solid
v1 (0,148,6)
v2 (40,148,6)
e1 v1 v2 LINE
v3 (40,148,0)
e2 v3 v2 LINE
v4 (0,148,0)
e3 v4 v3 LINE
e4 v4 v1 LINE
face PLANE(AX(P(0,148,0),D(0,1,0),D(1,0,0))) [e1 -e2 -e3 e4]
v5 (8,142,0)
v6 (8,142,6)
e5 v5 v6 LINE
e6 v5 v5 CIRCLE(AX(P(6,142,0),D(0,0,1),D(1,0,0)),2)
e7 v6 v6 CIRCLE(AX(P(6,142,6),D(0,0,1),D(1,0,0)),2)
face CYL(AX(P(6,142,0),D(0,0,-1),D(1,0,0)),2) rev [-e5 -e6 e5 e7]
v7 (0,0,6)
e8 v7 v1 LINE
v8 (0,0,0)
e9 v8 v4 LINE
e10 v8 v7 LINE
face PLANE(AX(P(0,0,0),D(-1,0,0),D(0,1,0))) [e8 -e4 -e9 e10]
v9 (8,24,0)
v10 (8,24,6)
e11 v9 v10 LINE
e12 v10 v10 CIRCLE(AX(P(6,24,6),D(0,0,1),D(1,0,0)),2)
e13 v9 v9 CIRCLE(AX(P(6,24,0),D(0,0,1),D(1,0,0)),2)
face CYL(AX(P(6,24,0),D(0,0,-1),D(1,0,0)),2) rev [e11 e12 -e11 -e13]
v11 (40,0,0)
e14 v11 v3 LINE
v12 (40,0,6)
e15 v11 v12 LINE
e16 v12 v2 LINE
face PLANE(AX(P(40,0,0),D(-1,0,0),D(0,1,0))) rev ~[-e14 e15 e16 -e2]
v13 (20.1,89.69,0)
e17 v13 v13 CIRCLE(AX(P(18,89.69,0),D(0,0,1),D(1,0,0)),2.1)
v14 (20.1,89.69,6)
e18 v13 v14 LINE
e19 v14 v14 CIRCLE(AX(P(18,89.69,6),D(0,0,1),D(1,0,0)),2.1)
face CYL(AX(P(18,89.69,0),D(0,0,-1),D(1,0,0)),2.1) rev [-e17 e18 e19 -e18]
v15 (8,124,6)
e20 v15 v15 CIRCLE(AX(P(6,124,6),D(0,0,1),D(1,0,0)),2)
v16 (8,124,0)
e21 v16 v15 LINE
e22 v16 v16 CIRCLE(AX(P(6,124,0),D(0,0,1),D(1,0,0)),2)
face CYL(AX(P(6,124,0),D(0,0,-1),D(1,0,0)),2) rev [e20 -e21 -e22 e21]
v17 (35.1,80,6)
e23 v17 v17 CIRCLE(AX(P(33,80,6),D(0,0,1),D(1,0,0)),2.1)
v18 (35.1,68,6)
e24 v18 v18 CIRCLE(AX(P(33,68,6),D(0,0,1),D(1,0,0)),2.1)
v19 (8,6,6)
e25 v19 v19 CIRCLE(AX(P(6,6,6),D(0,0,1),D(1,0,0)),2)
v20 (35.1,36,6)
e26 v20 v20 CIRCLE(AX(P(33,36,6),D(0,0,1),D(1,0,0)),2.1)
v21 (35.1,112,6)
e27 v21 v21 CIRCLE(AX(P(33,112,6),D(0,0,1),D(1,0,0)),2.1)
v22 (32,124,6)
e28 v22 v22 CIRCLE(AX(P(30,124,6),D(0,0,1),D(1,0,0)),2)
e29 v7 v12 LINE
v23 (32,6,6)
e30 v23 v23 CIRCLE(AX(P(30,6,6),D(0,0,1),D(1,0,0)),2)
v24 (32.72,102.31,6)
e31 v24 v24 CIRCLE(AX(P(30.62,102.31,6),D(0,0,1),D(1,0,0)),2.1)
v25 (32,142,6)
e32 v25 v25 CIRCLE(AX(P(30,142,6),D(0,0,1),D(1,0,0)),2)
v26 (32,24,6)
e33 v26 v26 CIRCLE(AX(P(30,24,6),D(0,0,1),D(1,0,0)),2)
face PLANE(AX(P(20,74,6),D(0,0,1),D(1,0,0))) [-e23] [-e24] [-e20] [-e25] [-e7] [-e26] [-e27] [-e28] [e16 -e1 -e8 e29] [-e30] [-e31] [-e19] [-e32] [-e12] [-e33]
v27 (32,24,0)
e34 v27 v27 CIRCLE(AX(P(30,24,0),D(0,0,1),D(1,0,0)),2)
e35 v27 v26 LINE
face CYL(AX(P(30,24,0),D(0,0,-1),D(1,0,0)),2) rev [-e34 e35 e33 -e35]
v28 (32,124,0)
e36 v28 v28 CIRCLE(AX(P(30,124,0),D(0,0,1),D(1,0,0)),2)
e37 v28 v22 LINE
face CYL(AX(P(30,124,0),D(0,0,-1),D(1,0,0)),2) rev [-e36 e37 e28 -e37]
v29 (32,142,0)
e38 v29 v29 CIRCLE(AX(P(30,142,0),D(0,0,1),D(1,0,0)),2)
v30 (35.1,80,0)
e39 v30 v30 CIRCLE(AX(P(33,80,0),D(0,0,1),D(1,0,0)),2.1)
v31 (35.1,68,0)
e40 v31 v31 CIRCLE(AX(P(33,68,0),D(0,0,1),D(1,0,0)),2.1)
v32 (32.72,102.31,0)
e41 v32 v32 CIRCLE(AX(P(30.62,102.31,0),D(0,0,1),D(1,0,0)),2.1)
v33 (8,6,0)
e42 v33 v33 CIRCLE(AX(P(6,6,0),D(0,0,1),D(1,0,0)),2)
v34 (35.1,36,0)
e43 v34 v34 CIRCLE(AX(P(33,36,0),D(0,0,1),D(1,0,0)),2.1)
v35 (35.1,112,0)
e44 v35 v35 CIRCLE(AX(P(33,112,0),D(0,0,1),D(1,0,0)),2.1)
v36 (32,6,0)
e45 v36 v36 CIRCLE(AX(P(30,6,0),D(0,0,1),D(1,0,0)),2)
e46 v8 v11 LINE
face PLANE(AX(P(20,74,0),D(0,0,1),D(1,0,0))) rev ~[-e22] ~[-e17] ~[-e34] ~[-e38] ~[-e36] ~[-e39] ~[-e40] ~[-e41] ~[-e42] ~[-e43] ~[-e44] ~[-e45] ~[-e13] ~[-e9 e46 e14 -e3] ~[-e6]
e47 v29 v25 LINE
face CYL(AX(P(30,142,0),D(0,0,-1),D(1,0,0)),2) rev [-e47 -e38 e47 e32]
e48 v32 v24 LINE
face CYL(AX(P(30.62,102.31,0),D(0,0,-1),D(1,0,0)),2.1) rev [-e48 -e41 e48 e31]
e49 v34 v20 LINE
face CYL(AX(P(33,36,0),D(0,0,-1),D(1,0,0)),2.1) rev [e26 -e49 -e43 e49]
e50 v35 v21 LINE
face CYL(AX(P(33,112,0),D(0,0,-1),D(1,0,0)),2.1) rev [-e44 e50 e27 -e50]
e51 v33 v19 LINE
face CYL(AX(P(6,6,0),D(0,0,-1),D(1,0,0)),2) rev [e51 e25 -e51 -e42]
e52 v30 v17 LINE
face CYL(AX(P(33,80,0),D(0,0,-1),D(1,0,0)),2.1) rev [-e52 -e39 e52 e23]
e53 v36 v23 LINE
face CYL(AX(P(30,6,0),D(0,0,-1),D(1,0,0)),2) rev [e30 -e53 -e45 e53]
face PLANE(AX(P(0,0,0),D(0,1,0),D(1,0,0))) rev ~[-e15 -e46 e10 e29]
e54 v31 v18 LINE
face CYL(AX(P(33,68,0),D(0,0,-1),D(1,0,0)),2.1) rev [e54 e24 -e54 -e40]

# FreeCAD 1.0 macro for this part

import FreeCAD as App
import Part
import Sketcher
Q = App.Units.Quantity


def add_polygon(sketch, points):
    """Adds a closed chain of lines whose ends are joined by coincident constraints."""
    first, n = sketch.GeometryCount, len(points)
    for a, b in zip(points, points[1:] + points[:1]):
        sketch.addGeometry(Part.LineSegment(App.Vector(*a, 0), App.Vector(*b, 0)), False)
    for i in range(n):
        sketch.addConstraint(Sketcher.Constraint("Coincident", first + i, 2, first + (i + 1) % n, 1))

doc = App.newDocument("Part")
body = doc.addObject("PartDesign::Body", "Body")

sketch1 = body.newObject("Sketcher::SketchObject", "Sketch")
sketch1.AttachmentSupport = (doc.getObject("XY_Plane"), [""])
sketch1.MapMode = "FlatFace"
add_polygon(sketch1, [(0, 148), (0, 0), (40, 0), (40, 148)])
sketch1.addGeometry(Part.Circle(App.Vector(6, 6, 0), App.Vector(0, 0, 1), 2), False)
sketch1.addGeometry(Part.Circle(App.Vector(6, 24, 0), App.Vector(0, 0, 1), 2), False)
sketch1.addGeometry(Part.Circle(App.Vector(30, 6, 0), App.Vector(0, 0, 1), 2), False)
sketch1.addGeometry(Part.Circle(App.Vector(30, 24, 0), App.Vector(0, 0, 1), 2), False)
sketch1.addGeometry(Part.Circle(App.Vector(33, 36, 0), App.Vector(0, 0, 1), 2.1), False)
sketch1.addGeometry(Part.Circle(App.Vector(33, 68, 0), App.Vector(0, 0, 1), 2.1), False)
sketch1.addGeometry(Part.Circle(App.Vector(18, 89.7, 0), App.Vector(0, 0, 1), 2.1), False)
sketch1.addGeometry(Part.Circle(App.Vector(6, 124, 0), App.Vector(0, 0, 1), 2), False)
sketch1.addGeometry(Part.Circle(App.Vector(6, 142, 0), App.Vector(0, 0, 1), 2), False)
sketch1.addGeometry(Part.Circle(App.Vector(33, 80, 0), App.Vector(0, 0, 1), 2.1), False)
sketch1.addGeometry(Part.Circle(App.Vector(30.6, 102.3, 0), App.Vector(0, 0, 1), 2.1), False)
sketch1.addGeometry(Part.Circle(App.Vector(30, 124, 0), App.Vector(0, 0, 1), 2), False)
sketch1.addGeometry(Part.Circle(App.Vector(33, 112, 0), App.Vector(0, 0, 1), 2.1), False)
sketch1.addGeometry(Part.Circle(App.Vector(30, 142, 0), App.Vector(0, 0, 1), 2), False)
sketch1.addConstraint([
    Sketcher.Constraint("Vertical", 0),
    Sketcher.Constraint("Horizontal", 1),
    Sketcher.Constraint("Vertical", 2),
    Sketcher.Constraint("Horizontal", 3),
    Sketcher.Constraint("Coincident", 0, 2, -1, 1),
    Sketcher.Constraint("Equal", 4, 5),
    Sketcher.Constraint("Equal", 5, 6),
    Sketcher.Constraint("Equal", 6, 7),
    Sketcher.Constraint("Equal", 8, 9),
    Sketcher.Constraint("Equal", 9, 10),
    Sketcher.Constraint("Equal", 7, 11),
    Sketcher.Constraint("Equal", 11, 12),
    Sketcher.Constraint("Equal", 10, 13),
    Sketcher.Constraint("Equal", 13, 14),
    Sketcher.Constraint("Equal", 12, 15),
    Sketcher.Constraint("Equal", 14, 16),
    Sketcher.Constraint("Equal", 15, 17),
    Sketcher.Constraint("Horizontal", 4, 3, 6, 3),
    Sketcher.Constraint("Horizontal", 5, 3, 7, 3),
    Sketcher.Constraint("Horizontal", 11, 3, 15, 3),
    Sketcher.Constraint("Horizontal", 12, 3, 17, 3),
    Sketcher.Constraint("Vertical", 4, 3, 5, 3),
    Sketcher.Constraint("Vertical", 6, 3, 7, 3),
    Sketcher.Constraint("Vertical", 8, 3, 9, 3),
    Sketcher.Constraint("Vertical", 5, 3, 11, 3),
    Sketcher.Constraint("Vertical", 11, 3, 12, 3),
    Sketcher.Constraint("Vertical", 9, 3, 13, 3),
    Sketcher.Constraint("Vertical", 7, 3, 15, 3),
    Sketcher.Constraint("Vertical", 13, 3, 16, 3),
    Sketcher.Constraint("Vertical", 15, 3, 17, 3),
    Sketcher.Constraint("Diameter", 4, Q("4 mm")),
    Sketcher.Constraint("Diameter", 8, Q("4.2 mm")),
    Sketcher.Constraint("DistanceX", 1, 1, 1, 2, Q("40 mm")),
    Sketcher.Constraint("DistanceY", 0, 2, 0, 1, Q("148 mm")),
    Sketcher.Constraint("DistanceX", -1, 1, 4, 3, Q("6 mm")),
    Sketcher.Constraint("DistanceY", -1, 1, 4, 3, Q("6 mm")),
    Sketcher.Constraint("DistanceY", -1, 1, 5, 3, Q("24 mm")),
    Sketcher.Constraint("DistanceX", -1, 1, 6, 3, Q("30 mm")),
    Sketcher.Constraint("DistanceX", -1, 1, 8, 3, Q("33 mm")),
    Sketcher.Constraint("DistanceY", -1, 1, 8, 3, Q("36 mm")),
    Sketcher.Constraint("DistanceY", -1, 1, 9, 3, Q("68 mm")),
    Sketcher.Constraint("DistanceX", -1, 1, 10, 3, Q("18 mm")),
    Sketcher.Constraint("DistanceY", -1, 1, 11, 3, Q("124 mm")),
    Sketcher.Constraint("DistanceY", -1, 1, 12, 3, Q("142 mm")),
    Sketcher.Constraint("DistanceY", -1, 1, 13, 3, Q("80 mm")),
    Sketcher.Constraint("DistanceY", -1, 1, 16, 3, Q("112 mm")),
    Sketcher.Constraint("DistanceY", -1, 1, 10, 3, Q("89.69 mm")),
    Sketcher.Constraint("DistanceX", -1, 1, 14, 3, Q("30.62 mm")),
    Sketcher.Constraint("DistanceY", -1, 1, 14, 3, Q("102.31 mm")),
])
pad1 = body.newObject("PartDesign::Pad", "Pad")
pad1.Profile = sketch1
pad1.Length = 6

doc.recompute()
